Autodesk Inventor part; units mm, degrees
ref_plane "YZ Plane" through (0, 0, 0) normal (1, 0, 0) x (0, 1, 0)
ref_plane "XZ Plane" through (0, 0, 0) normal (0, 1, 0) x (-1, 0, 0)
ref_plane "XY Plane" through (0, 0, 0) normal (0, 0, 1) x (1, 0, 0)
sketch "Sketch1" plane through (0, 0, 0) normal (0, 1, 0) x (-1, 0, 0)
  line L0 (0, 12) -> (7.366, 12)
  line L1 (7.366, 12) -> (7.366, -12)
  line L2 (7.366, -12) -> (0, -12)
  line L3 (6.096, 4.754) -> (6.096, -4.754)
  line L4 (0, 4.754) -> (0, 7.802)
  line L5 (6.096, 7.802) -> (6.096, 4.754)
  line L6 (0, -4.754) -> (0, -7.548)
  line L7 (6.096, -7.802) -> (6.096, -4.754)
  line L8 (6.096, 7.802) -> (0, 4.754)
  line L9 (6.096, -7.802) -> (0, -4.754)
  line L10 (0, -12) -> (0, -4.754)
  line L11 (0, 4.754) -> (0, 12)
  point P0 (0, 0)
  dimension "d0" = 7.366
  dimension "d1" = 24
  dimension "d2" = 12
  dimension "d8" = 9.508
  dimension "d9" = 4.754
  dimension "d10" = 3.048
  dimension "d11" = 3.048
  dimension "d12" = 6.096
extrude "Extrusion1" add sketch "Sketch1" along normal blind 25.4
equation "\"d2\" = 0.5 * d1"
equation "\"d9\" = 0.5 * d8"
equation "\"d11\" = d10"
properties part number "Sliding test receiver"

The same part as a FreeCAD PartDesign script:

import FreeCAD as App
import Part
import Sketcher

V = App.Vector
Q = App.Units.Quantity


def add_polygon(sketch, points):
    """Adds a closed chain of lines whose ends are joined by coincident constraints."""
    first, n = sketch.GeometryCount, len(points)
    for a, b in zip(points, points[1:] + points[:1]):
        sketch.addGeometry(Part.LineSegment(App.Vector(*a, 0), App.Vector(*b, 0)), False)
    for i in range(n):
        sketch.addConstraint(Sketcher.Constraint("Coincident", first + i, 2, first + (i + 1) % n, 1))

doc = App.newDocument("Part")
body = doc.addObject("PartDesign::Body", "Body")

sketch1 = doc.addObject("Sketcher::SketchObject", "Sketch")
body.addObject(sketch1)
sketch1.AttachmentSupport = (doc.XZ_Plane, [""])
sketch1.MapMode = "FlatFace"
add_polygon(sketch1, [(-7, 12), (0, 12), (0, 5), (-6, 8), (-6, -8), (0, -5), (0, -12), (-7, -12)])
sketch1.addConstraint([
    Sketcher.Constraint("Horizontal", 0),
    Sketcher.Constraint("Vertical", 1),
    Sketcher.Constraint("Vertical", 3),
    Sketcher.Constraint("Vertical", 5),
    Sketcher.Constraint("Horizontal", 6),
    Sketcher.Constraint("Vertical", 7),
    Sketcher.Constraint("Symmetric", 1, 2, 4, 2, -1, 1),
    Sketcher.Constraint("Symmetric", 0, 2, 5, 2, -1),
    Sketcher.Constraint("Equal", 2, 4),
    Sketcher.Constraint("DistanceX", 0, 1, 0, 2, Q("0.29 in")),
    Sketcher.Constraint("DistanceX", 2, 2, -1, 1, Q("0.24 in")),
    Sketcher.Constraint("DistanceY", 1, 2, 2, 2, Q("0.12 in")),
    Sketcher.Constraint("DistanceY", 7, 1, 7, 2, 24.0),
    Sketcher.Constraint("DistanceY", -1, 1, 1, 2, 4.754),
])
pad1 = doc.addObject("PartDesign::Pad", "Pad")
body.addObject(pad1)
pad1.Profile = sketch1
pad1.Length = Q("1 in")
pad1.Reversed = True

doc.recompute()
